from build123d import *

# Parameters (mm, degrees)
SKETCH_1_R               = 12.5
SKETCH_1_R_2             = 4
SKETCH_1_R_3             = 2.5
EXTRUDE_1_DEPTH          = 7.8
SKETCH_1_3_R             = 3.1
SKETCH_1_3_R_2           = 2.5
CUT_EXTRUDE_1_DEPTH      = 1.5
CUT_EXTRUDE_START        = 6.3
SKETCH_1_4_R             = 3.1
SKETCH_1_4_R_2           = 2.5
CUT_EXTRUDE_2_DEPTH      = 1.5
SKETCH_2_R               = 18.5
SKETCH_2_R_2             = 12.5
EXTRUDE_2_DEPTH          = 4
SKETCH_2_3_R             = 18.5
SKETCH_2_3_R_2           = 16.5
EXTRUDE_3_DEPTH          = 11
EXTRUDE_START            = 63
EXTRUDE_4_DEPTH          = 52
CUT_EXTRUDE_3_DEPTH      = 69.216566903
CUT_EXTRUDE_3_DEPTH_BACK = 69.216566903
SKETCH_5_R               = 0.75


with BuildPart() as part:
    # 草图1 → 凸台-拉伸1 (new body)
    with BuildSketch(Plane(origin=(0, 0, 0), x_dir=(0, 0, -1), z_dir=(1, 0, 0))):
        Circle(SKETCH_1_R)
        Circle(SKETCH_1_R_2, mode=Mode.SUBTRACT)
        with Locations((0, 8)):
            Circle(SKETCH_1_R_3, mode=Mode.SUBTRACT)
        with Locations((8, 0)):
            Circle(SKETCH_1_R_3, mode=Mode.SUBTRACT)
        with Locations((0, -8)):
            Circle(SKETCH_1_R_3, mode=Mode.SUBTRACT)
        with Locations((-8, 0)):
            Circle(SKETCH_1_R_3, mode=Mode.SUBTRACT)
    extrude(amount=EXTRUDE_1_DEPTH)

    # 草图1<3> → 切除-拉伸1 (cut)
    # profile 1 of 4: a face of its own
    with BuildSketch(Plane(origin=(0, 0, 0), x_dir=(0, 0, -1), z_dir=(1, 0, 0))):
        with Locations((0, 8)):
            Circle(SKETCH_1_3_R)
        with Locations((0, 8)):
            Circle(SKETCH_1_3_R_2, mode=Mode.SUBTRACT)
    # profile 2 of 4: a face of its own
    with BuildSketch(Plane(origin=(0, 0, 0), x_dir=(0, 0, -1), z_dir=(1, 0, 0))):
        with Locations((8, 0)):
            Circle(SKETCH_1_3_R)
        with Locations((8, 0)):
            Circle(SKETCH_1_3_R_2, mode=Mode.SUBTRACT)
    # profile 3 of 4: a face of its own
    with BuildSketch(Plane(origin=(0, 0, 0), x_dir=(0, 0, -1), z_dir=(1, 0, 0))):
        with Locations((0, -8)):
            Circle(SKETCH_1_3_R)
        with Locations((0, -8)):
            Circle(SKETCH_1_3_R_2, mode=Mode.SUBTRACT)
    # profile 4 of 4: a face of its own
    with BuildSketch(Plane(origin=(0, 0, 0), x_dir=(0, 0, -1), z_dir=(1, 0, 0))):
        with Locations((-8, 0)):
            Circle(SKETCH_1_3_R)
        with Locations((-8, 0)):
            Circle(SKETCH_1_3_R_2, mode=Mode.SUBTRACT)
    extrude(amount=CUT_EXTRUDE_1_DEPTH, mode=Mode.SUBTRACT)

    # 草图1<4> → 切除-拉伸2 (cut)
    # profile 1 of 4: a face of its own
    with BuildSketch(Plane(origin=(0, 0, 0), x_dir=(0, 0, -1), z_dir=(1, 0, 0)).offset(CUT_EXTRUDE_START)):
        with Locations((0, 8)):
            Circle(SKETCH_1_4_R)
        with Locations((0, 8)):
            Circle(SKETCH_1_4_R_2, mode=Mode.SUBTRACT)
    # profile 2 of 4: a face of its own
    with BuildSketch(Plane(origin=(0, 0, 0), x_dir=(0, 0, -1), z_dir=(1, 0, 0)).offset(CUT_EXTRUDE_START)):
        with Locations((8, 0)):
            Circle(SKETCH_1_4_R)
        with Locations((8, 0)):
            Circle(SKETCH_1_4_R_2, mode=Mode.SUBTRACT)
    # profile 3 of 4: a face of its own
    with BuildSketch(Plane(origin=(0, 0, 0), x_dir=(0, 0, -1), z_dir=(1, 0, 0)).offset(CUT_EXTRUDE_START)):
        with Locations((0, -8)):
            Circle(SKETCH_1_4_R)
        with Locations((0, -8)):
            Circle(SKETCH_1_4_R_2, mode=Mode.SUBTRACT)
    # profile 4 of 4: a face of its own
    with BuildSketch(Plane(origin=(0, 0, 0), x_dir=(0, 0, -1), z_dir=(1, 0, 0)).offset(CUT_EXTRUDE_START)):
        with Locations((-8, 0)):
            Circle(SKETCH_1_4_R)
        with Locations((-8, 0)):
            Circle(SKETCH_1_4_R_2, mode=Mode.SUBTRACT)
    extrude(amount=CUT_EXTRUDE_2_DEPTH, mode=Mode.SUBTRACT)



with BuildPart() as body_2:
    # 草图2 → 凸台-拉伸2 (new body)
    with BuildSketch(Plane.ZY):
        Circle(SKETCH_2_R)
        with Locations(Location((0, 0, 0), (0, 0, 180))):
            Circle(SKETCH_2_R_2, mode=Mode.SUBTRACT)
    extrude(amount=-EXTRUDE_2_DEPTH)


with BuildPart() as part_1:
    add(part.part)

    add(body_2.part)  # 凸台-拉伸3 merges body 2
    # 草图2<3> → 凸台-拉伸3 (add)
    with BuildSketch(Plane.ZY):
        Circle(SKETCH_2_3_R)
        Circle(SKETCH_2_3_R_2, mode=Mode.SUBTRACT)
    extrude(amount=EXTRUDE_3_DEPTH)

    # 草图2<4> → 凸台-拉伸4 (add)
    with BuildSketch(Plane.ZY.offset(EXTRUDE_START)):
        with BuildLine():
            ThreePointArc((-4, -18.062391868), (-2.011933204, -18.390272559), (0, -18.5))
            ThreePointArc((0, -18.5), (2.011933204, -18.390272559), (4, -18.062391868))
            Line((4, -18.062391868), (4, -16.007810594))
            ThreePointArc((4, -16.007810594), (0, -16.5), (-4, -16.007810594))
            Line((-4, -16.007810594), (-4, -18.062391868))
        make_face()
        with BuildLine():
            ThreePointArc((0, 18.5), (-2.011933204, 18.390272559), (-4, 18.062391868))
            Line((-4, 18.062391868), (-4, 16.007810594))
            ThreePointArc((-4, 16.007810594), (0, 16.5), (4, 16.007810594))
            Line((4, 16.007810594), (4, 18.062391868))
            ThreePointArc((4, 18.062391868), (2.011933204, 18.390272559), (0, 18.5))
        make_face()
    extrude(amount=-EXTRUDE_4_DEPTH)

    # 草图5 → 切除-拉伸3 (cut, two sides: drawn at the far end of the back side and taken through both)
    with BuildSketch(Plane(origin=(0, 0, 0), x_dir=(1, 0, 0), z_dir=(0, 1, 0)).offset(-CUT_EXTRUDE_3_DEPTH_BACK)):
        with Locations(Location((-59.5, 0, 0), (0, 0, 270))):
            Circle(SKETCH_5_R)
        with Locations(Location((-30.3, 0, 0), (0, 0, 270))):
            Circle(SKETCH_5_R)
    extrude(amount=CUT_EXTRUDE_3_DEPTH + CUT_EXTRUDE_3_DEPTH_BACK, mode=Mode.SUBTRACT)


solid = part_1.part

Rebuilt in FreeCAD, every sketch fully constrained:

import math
import FreeCAD as App
import Part
import Sketcher
from FreeCAD import Vector

doc = App.newDocument("Part")
params = doc.addObject("Spreadsheet::Sheet", "Params")
for row, (alias, value) in enumerate([
    ("sketch1_diameter", "25 mm"),
    ("sketch1_diameter2", "5 mm"),
    ("sketch1_diameter3", "8 mm"),
    ("pad1_length", "7.8 mm"),
    ("sketch2_diameter", "5 mm"),
    ("sketch2_diameter2", "6.2 mm"),
    ("pocket1_length", "1.5 mm"),
    ("sketch3_diameter", "5 mm"),
    ("sketch3_diameter2", "6.2 mm"),
    ("pocket2_length", "1.5 mm"),
    ("sketch4_diameter", "37 mm"),
    ("sketch4_diameter2", "25 mm"),
    ("pad2_length", "4 mm"),
    ("sketch5_diameter", "37 mm"),
    ("sketch5_diameter2", "33 mm"),
    ("pad3_length", "11 mm"),
    ("sketch6_radius", "18.5 mm"),
    ("sketch6_radius2", "16.5 mm"),
    ("pad4_length", "52 mm"),
    ("sketch7_diameter", "1.5 mm"),
], start=1):
    params.set(f"A{row}", alias)
    params.set(f"B{row}", "=" + value)
    params.setAlias(f"B{row}", alias)

body = doc.addObject("PartDesign::Body", "Body")

# Sketch on YZ plane
sketch1 = doc.addObject("Sketcher::SketchObject", "Sketch")
body.addObject(sketch1)
sketch1.AttachmentSupport = (doc.YZ_Plane, [""])
sketch1.MapMode = "FlatFace"
sketch1.addGeometry(Part.Circle(Vector(0, 0, 0), Vector(0, 0, 1), 12.5), False)
sketch1.addGeometry(Part.Circle(Vector(-8, 0, 0), Vector(0, 0, 1), 2.5), False)
sketch1.addGeometry(Part.Circle(Vector(0, 8, 0), Vector(0, 0, 1), 2.5), False)
sketch1.addGeometry(Part.Circle(Vector(0, 0, 0), Vector(0, 0, 1), 4), False)
sketch1.addGeometry(Part.Circle(Vector(0, -8, 0), Vector(0, 0, 1), 2.5), False)
sketch1.addGeometry(Part.Circle(Vector(8, 0, 0), Vector(0, 0, 1), 2.5), False)
sketch1.addConstraint(Sketcher.Constraint("Coincident", 0, 3, -1, 1))
sketch1.addConstraint(Sketcher.Constraint("Coincident", 3, 3, -1, 1))
sketch1.addConstraint(Sketcher.Constraint("Equal", 1, 2))
sketch1.addConstraint(Sketcher.Constraint("Equal", 2, 4))
sketch1.addConstraint(Sketcher.Constraint("Equal", 4, 5))
sketch1.addConstraint(Sketcher.Constraint("Symmetric", 2, 3, 4, 3, -1, 1))
sketch1.addConstraint(Sketcher.Constraint("Symmetric", 1, 3, 5, 3, -1, 1))
sketch1.addConstraint(Sketcher.Constraint("PointOnObject", 1, 3, -1))
sketch1.addConstraint(Sketcher.Constraint("PointOnObject", 2, 3, -2))
sketch1.addConstraint(Sketcher.Constraint("Diameter", 0, 25.0))
sketch1.addConstraint(Sketcher.Constraint("Diameter", 1, 5.0))
sketch1.addConstraint(Sketcher.Constraint("Diameter", 3, 8.0))
sketch1.addConstraint(Sketcher.Constraint("DistanceX", 1, 3, -1, 1, 8.0))
sketch1.addConstraint(Sketcher.Constraint("DistanceY", -1, 1, 2, 3, 8.0))
sketch1.setExpression("Constraints[9]", "Params.sketch1_diameter")
sketch1.setExpression("Constraints[10]", "Params.sketch1_diameter2")
sketch1.setExpression("Constraints[11]", "Params.sketch1_diameter3")
pad1 = doc.addObject("PartDesign::Pad", "Pad")
body.addObject(pad1)
pad1.Profile = sketch1
pad1.setExpression("Length", "Params.pad1_length")

# Sketch on YZ plane
sketch2 = doc.addObject("Sketcher::SketchObject", "Sketch001")
body.addObject(sketch2)
sketch2.AttachmentSupport = (doc.YZ_Plane, [""])
sketch2.MapMode = "FlatFace"
sketch2.addGeometry(Part.Circle(Vector(8, 0, 0), Vector(0, 0, 1), 3.1), False)
sketch2.addGeometry(Part.Circle(Vector(8, 0, 0), Vector(0, 0, 1), 2.5), False)
sketch2.addGeometry(Part.Circle(Vector(0, -8, 0), Vector(0, 0, 1), 3.1), False)
sketch2.addGeometry(Part.Circle(Vector(0, -8, 0), Vector(0, 0, 1), 2.5), False)
sketch2.addGeometry(Part.Circle(Vector(-8, 0, 0), Vector(0, 0, 1), 3.1), False)
sketch2.addGeometry(Part.Circle(Vector(-8, 0, 0), Vector(0, 0, 1), 2.5), False)
sketch2.addGeometry(Part.Circle(Vector(0, 8, 0), Vector(0, 0, 1), 3.1), False)
sketch2.addGeometry(Part.Circle(Vector(0, 8, 0), Vector(0, 0, 1), 2.5), False)
sketch2.addConstraint(Sketcher.Constraint("Coincident", 1, 3, 0, 3))
sketch2.addConstraint(Sketcher.Constraint("Coincident", 3, 3, 2, 3))
sketch2.addConstraint(Sketcher.Constraint("Coincident", 5, 3, 4, 3))
sketch2.addConstraint(Sketcher.Constraint("Coincident", 7, 3, 6, 3))
sketch2.addConstraint(Sketcher.Constraint("Equal", 0, 2))
sketch2.addConstraint(Sketcher.Constraint("Equal", 1, 3))
sketch2.addConstraint(Sketcher.Constraint("Equal", 2, 4))
sketch2.addConstraint(Sketcher.Constraint("Equal", 3, 5))
sketch2.addConstraint(Sketcher.Constraint("Equal", 4, 6))
sketch2.addConstraint(Sketcher.Constraint("Equal", 5, 7))
sketch2.addConstraint(Sketcher.Constraint("Symmetric", 0, 3, 4, 3, -1, 1))
sketch2.addConstraint(Sketcher.Constraint("Symmetric", 2, 3, 6, 3, -1, 1))
sketch2.addConstraint(Sketcher.Constraint("PointOnObject", 0, 3, -1))
sketch2.addConstraint(Sketcher.Constraint("PointOnObject", 2, 3, -2))
sketch2.addConstraint(Sketcher.Constraint("Diameter", 1, 5.0))
sketch2.addConstraint(Sketcher.Constraint("Diameter", 0, 6.2))
sketch2.addConstraint(Sketcher.Constraint("DistanceX", -1, 1, 0, 3, 8.0))
sketch2.addConstraint(Sketcher.Constraint("DistanceY", 2, 3, -1, 1, 8.0))
sketch2.setExpression("Constraints[14]", "Params.sketch2_diameter")
sketch2.setExpression("Constraints[15]", "Params.sketch2_diameter2")
pocket1 = doc.addObject("PartDesign::Pocket", "Pocket")
body.addObject(pocket1)
pocket1.Profile = sketch2
pocket1.setExpression("Length", "Params.pocket1_length")
pocket1.Reversed = True

# Sketch on YZ plane
sketch3 = doc.addObject("Sketcher::SketchObject", "Sketch002")
body.addObject(sketch3)
sketch3.AttachmentSupport = (doc.YZ_Plane, [""])
sketch3.MapMode = "FlatFace"
sketch3.AttachmentOffset = App.Placement(Vector(0, 0, 6.3), App.Rotation())
sketch3.addGeometry(Part.Circle(Vector(8, 0, 0), Vector(0, 0, 1), 3.1), False)
sketch3.addGeometry(Part.Circle(Vector(8, 0, 0), Vector(0, 0, 1), 2.5), False)
sketch3.addGeometry(Part.Circle(Vector(0, -8, 0), Vector(0, 0, 1), 3.1), False)
sketch3.addGeometry(Part.Circle(Vector(0, -8, 0), Vector(0, 0, 1), 2.5), False)
sketch3.addGeometry(Part.Circle(Vector(-8, 0, 0), Vector(0, 0, 1), 3.1), False)
sketch3.addGeometry(Part.Circle(Vector(-8, 0, 0), Vector(0, 0, 1), 2.5), False)
sketch3.addGeometry(Part.Circle(Vector(0, 8, 0), Vector(0, 0, 1), 3.1), False)
sketch3.addGeometry(Part.Circle(Vector(0, 8, 0), Vector(0, 0, 1), 2.5), False)
sketch3.addConstraint(Sketcher.Constraint("Coincident", 1, 3, 0, 3))
sketch3.addConstraint(Sketcher.Constraint("Coincident", 3, 3, 2, 3))
sketch3.addConstraint(Sketcher.Constraint("Coincident", 5, 3, 4, 3))
sketch3.addConstraint(Sketcher.Constraint("Coincident", 7, 3, 6, 3))
sketch3.addConstraint(Sketcher.Constraint("Equal", 0, 2))
sketch3.addConstraint(Sketcher.Constraint("Equal", 1, 3))
sketch3.addConstraint(Sketcher.Constraint("Equal", 2, 4))
sketch3.addConstraint(Sketcher.Constraint("Equal", 3, 5))
sketch3.addConstraint(Sketcher.Constraint("Equal", 4, 6))
sketch3.addConstraint(Sketcher.Constraint("Equal", 5, 7))
sketch3.addConstraint(Sketcher.Constraint("Symmetric", 0, 3, 4, 3, -1, 1))
sketch3.addConstraint(Sketcher.Constraint("Symmetric", 2, 3, 6, 3, -1, 1))
sketch3.addConstraint(Sketcher.Constraint("PointOnObject", 0, 3, -1))
sketch3.addConstraint(Sketcher.Constraint("PointOnObject", 2, 3, -2))
sketch3.addConstraint(Sketcher.Constraint("Diameter", 1, 5.0))
sketch3.addConstraint(Sketcher.Constraint("Diameter", 0, 6.2))
sketch3.addConstraint(Sketcher.Constraint("DistanceX", -1, 1, 0, 3, 8.0))
sketch3.addConstraint(Sketcher.Constraint("DistanceY", 2, 3, -1, 1, 8.0))
sketch3.setExpression("Constraints[14]", "Params.sketch3_diameter")
sketch3.setExpression("Constraints[15]", "Params.sketch3_diameter2")
pocket2 = doc.addObject("PartDesign::Pocket", "Pocket001")
body.addObject(pocket2)
pocket2.Profile = sketch3
pocket2.setExpression("Length", "Params.pocket2_length")
pocket2.Reversed = True
body2 = doc.addObject("PartDesign::Body", "Body001")

# Sketch on YZ plane
sketch4 = doc.addObject("Sketcher::SketchObject", "Sketch003")
body2.addObject(sketch4)
sketch4.AttachmentSupport = (doc.getObject("YZ_Plane001"), [""])
sketch4.MapMode = "FlatFace"
sketch4.addGeometry(Part.Circle(Vector(0, 0, 0), Vector(0, 0, 1), 18.5), False)
sketch4.addGeometry(Part.Circle(Vector(0, 0, 0), Vector(0, 0, 1), 12.5), False)
sketch4.addConstraint(Sketcher.Constraint("Coincident", 0, 3, -1, 1))
sketch4.addConstraint(Sketcher.Constraint("Coincident", 1, 3, -1, 1))
sketch4.addConstraint(Sketcher.Constraint("Diameter", 0, 37.0))
sketch4.addConstraint(Sketcher.Constraint("Diameter", 1, 25.0))
sketch4.setExpression("Constraints[2]", "Params.sketch4_diameter")
sketch4.setExpression("Constraints[3]", "Params.sketch4_diameter2")
pad2 = doc.addObject("PartDesign::Pad", "Pad001")
body2.addObject(pad2)
pad2.Profile = sketch4
pad2.setExpression("Length", "Params.pad2_length")
doc.recompute()

boolean = doc.addObject("PartDesign::Boolean", "Boolean")
body.addObject(boolean)
boolean.Type = "Fuse"
boolean.addObjects([body2])

# Sketch on YZ plane
sketch5 = doc.addObject("Sketcher::SketchObject", "Sketch004")
body.addObject(sketch5)
sketch5.AttachmentSupport = (doc.YZ_Plane, [""])
sketch5.MapMode = "FlatFace"
sketch5.addGeometry(Part.Circle(Vector(0, 0, 0), Vector(0, 0, 1), 18.5), False)
sketch5.addGeometry(Part.Circle(Vector(0, 0, 0), Vector(0, 0, 1), 16.5), False)
sketch5.addConstraint(Sketcher.Constraint("Coincident", 0, 3, -1, 1))
sketch5.addConstraint(Sketcher.Constraint("Coincident", 1, 3, -1, 1))
sketch5.addConstraint(Sketcher.Constraint("Diameter", 0, 37.0))
sketch5.addConstraint(Sketcher.Constraint("Diameter", 1, 33.0))
sketch5.setExpression("Constraints[2]", "Params.sketch5_diameter")
sketch5.setExpression("Constraints[3]", "Params.sketch5_diameter2")
pad3 = doc.addObject("PartDesign::Pad", "Pad002")
body.addObject(pad3)
pad3.Profile = sketch5
pad3.setExpression("Length", "Params.pad3_length")
pad3.Reversed = True

# Sketch on YZ plane
sketch6 = doc.addObject("Sketcher::SketchObject", "Sketch005")
body.addObject(sketch6)
sketch6.AttachmentSupport = (doc.YZ_Plane, [""])
sketch6.MapMode = "FlatFace"
sketch6.AttachmentOffset = App.Placement(Vector(0, 0, -63), App.Rotation())
sketch6.addGeometry(Part.ArcOfCircle(Part.Circle(Vector(0, 0, 0), Vector(0, 0, 1), 18.5), math.radians(180), math.radians(192.48689)), False)
sketch6.addGeometry(Part.ArcOfCircle(Part.Circle(Vector(0, 0, 0), Vector(0, 0, 1), 18.5), math.radians(167.51311), math.radians(180)), False)
sketch6.addGeometry(Part.LineSegment(Vector(-18.062392, 4, 0), Vector(-16.007811, 4, 0)), False)
sketch6.addGeometry(Part.ArcOfCircle(Part.Circle(Vector(0, 0, 0), Vector(0, 0, 1), 16.5), math.radians(165.970335), math.radians(194.029665)), False)
sketch6.addGeometry(Part.LineSegment(Vector(-16.007811, -4, 0), Vector(-18.062392, -4, 0)), False)
sketch6.addGeometry(Part.ArcOfCircle(Part.Circle(Vector(0, 0, 0), Vector(0, 0, 1), 18.5), math.radians(-12.48689), math.radians(0)), False)
sketch6.addGeometry(Part.LineSegment(Vector(18.062392, -4, 0), Vector(16.007811, -4, 0)), False)
sketch6.addGeometry(Part.ArcOfCircle(Part.Circle(Vector(0, 0, 0), Vector(0, 0, 1), 16.5), math.radians(-14.029665), math.radians(14.029665)), False)
sketch6.addGeometry(Part.LineSegment(Vector(16.007811, 4, 0), Vector(18.062392, 4, 0)), False)
sketch6.addGeometry(Part.ArcOfCircle(Part.Circle(Vector(0, 0, 0), Vector(0, 0, 1), 18.5), math.radians(0), math.radians(12.48689)), False)
sketch6.addConstraint(Sketcher.Constraint("Tangent", 0, 1, 1, 2))
sketch6.addConstraint(Sketcher.Constraint("Coincident", 1, 1, 2, 1))
sketch6.addConstraint(Sketcher.Constraint("Coincident", 2, 2, 3, 1))
sketch6.addConstraint(Sketcher.Constraint("Coincident", 3, 2, 4, 1))
sketch6.addConstraint(Sketcher.Constraint("Coincident", 4, 2, 0, 2))
sketch6.addConstraint(Sketcher.Constraint("Coincident", 5, 1, 6, 1))
sketch6.addConstraint(Sketcher.Constraint("Coincident", 6, 2, 7, 1))
sketch6.addConstraint(Sketcher.Constraint("Coincident", 7, 2, 8, 1))
sketch6.addConstraint(Sketcher.Constraint("Coincident", 8, 2, 9, 2))
sketch6.addConstraint(Sketcher.Constraint("Tangent", 9, 1, 5, 2))
sketch6.addConstraint(Sketcher.Constraint("Horizontal", 2))
sketch6.addConstraint(Sketcher.Constraint("Horizontal", 4))
sketch6.addConstraint(Sketcher.Constraint("Horizontal", 6))
sketch6.addConstraint(Sketcher.Constraint("Horizontal", 8))
sketch6.addConstraint(Sketcher.Constraint("Coincident", 0, 3, -1, 1))
sketch6.addConstraint(Sketcher.Constraint("Coincident", 3, 3, -1, 1))
sketch6.addConstraint(Sketcher.Constraint("Coincident", 5, 3, -1, 1))
sketch6.addConstraint(Sketcher.Constraint("Coincident", 7, 3, -1, 1))
sketch6.addConstraint(Sketcher.Constraint("Equal", 0, 1))
sketch6.addConstraint(Sketcher.Constraint("Equal", 1, 5))
sketch6.addConstraint(Sketcher.Constraint("Equal", 3, 7))
sketch6.addConstraint(Sketcher.Constraint("Equal", 5, 9))
sketch6.addConstraint(Sketcher.Constraint("PointOnObject", 0, 1, -1))
sketch6.addConstraint(Sketcher.Constraint("PointOnObject", 9, 1, -1))
sketch6.addConstraint(Sketcher.Constraint("Horizontal", 4, 2, 5, 1))
sketch6.addConstraint(Sketcher.Constraint("Horizontal", 2, 2, 7, 2))
sketch6.addConstraint(Sketcher.Constraint("Vertical", 2, 2, 3, 2))
sketch6.addConstraint(Sketcher.Constraint("Radius", 0, 18.5))
sketch6.addConstraint(Sketcher.Constraint("Radius", 3, 16.5))
sketch6.addConstraint(Sketcher.Constraint("DistanceY", -1, 1, 1, 1, 4.0))
sketch6.setExpression("Constraints[27]", "Params.sketch6_radius")
sketch6.setExpression("Constraints[28]", "Params.sketch6_radius2")
pad4 = doc.addObject("PartDesign::Pad", "Pad003")
body.addObject(pad4)
pad4.Profile = sketch6
pad4.setExpression("Length", "Params.pad4_length")

# Sketch on XZ plane
sketch7 = doc.addObject("Sketcher::SketchObject", "Sketch006")
body.addObject(sketch7)
sketch7.AttachmentSupport = (doc.XZ_Plane, [""])
sketch7.MapMode = "FlatFace"
sketch7.addGeometry(Part.Circle(Vector(-59.5, 0, 0), Vector(0, 0, 1), 0.75), False)
sketch7.addGeometry(Part.Circle(Vector(-30.3, 0, 0), Vector(0, 0, 1), 0.75), False)
sketch7.addConstraint(Sketcher.Constraint("Equal", 0, 1))
sketch7.addConstraint(Sketcher.Constraint("PointOnObject", 0, 3, -1))
sketch7.addConstraint(Sketcher.Constraint("PointOnObject", 1, 3, -1))
sketch7.addConstraint(Sketcher.Constraint("Diameter", 0, 1.5))
sketch7.addConstraint(Sketcher.Constraint("DistanceX", 0, 3, -1, 1, 59.5))
sketch7.addConstraint(Sketcher.Constraint("DistanceX", 1, 3, -1, 1, 30.3))
sketch7.setExpression("Constraints[3]", "Params.sketch7_diameter")
pocket3 = doc.addObject("PartDesign::Pocket", "Pocket002")
body.addObject(pocket3)
pocket3.Profile = sketch7
pocket3.Type = "ThroughAll"
pocket3.Midplane = True

doc.recompute()
